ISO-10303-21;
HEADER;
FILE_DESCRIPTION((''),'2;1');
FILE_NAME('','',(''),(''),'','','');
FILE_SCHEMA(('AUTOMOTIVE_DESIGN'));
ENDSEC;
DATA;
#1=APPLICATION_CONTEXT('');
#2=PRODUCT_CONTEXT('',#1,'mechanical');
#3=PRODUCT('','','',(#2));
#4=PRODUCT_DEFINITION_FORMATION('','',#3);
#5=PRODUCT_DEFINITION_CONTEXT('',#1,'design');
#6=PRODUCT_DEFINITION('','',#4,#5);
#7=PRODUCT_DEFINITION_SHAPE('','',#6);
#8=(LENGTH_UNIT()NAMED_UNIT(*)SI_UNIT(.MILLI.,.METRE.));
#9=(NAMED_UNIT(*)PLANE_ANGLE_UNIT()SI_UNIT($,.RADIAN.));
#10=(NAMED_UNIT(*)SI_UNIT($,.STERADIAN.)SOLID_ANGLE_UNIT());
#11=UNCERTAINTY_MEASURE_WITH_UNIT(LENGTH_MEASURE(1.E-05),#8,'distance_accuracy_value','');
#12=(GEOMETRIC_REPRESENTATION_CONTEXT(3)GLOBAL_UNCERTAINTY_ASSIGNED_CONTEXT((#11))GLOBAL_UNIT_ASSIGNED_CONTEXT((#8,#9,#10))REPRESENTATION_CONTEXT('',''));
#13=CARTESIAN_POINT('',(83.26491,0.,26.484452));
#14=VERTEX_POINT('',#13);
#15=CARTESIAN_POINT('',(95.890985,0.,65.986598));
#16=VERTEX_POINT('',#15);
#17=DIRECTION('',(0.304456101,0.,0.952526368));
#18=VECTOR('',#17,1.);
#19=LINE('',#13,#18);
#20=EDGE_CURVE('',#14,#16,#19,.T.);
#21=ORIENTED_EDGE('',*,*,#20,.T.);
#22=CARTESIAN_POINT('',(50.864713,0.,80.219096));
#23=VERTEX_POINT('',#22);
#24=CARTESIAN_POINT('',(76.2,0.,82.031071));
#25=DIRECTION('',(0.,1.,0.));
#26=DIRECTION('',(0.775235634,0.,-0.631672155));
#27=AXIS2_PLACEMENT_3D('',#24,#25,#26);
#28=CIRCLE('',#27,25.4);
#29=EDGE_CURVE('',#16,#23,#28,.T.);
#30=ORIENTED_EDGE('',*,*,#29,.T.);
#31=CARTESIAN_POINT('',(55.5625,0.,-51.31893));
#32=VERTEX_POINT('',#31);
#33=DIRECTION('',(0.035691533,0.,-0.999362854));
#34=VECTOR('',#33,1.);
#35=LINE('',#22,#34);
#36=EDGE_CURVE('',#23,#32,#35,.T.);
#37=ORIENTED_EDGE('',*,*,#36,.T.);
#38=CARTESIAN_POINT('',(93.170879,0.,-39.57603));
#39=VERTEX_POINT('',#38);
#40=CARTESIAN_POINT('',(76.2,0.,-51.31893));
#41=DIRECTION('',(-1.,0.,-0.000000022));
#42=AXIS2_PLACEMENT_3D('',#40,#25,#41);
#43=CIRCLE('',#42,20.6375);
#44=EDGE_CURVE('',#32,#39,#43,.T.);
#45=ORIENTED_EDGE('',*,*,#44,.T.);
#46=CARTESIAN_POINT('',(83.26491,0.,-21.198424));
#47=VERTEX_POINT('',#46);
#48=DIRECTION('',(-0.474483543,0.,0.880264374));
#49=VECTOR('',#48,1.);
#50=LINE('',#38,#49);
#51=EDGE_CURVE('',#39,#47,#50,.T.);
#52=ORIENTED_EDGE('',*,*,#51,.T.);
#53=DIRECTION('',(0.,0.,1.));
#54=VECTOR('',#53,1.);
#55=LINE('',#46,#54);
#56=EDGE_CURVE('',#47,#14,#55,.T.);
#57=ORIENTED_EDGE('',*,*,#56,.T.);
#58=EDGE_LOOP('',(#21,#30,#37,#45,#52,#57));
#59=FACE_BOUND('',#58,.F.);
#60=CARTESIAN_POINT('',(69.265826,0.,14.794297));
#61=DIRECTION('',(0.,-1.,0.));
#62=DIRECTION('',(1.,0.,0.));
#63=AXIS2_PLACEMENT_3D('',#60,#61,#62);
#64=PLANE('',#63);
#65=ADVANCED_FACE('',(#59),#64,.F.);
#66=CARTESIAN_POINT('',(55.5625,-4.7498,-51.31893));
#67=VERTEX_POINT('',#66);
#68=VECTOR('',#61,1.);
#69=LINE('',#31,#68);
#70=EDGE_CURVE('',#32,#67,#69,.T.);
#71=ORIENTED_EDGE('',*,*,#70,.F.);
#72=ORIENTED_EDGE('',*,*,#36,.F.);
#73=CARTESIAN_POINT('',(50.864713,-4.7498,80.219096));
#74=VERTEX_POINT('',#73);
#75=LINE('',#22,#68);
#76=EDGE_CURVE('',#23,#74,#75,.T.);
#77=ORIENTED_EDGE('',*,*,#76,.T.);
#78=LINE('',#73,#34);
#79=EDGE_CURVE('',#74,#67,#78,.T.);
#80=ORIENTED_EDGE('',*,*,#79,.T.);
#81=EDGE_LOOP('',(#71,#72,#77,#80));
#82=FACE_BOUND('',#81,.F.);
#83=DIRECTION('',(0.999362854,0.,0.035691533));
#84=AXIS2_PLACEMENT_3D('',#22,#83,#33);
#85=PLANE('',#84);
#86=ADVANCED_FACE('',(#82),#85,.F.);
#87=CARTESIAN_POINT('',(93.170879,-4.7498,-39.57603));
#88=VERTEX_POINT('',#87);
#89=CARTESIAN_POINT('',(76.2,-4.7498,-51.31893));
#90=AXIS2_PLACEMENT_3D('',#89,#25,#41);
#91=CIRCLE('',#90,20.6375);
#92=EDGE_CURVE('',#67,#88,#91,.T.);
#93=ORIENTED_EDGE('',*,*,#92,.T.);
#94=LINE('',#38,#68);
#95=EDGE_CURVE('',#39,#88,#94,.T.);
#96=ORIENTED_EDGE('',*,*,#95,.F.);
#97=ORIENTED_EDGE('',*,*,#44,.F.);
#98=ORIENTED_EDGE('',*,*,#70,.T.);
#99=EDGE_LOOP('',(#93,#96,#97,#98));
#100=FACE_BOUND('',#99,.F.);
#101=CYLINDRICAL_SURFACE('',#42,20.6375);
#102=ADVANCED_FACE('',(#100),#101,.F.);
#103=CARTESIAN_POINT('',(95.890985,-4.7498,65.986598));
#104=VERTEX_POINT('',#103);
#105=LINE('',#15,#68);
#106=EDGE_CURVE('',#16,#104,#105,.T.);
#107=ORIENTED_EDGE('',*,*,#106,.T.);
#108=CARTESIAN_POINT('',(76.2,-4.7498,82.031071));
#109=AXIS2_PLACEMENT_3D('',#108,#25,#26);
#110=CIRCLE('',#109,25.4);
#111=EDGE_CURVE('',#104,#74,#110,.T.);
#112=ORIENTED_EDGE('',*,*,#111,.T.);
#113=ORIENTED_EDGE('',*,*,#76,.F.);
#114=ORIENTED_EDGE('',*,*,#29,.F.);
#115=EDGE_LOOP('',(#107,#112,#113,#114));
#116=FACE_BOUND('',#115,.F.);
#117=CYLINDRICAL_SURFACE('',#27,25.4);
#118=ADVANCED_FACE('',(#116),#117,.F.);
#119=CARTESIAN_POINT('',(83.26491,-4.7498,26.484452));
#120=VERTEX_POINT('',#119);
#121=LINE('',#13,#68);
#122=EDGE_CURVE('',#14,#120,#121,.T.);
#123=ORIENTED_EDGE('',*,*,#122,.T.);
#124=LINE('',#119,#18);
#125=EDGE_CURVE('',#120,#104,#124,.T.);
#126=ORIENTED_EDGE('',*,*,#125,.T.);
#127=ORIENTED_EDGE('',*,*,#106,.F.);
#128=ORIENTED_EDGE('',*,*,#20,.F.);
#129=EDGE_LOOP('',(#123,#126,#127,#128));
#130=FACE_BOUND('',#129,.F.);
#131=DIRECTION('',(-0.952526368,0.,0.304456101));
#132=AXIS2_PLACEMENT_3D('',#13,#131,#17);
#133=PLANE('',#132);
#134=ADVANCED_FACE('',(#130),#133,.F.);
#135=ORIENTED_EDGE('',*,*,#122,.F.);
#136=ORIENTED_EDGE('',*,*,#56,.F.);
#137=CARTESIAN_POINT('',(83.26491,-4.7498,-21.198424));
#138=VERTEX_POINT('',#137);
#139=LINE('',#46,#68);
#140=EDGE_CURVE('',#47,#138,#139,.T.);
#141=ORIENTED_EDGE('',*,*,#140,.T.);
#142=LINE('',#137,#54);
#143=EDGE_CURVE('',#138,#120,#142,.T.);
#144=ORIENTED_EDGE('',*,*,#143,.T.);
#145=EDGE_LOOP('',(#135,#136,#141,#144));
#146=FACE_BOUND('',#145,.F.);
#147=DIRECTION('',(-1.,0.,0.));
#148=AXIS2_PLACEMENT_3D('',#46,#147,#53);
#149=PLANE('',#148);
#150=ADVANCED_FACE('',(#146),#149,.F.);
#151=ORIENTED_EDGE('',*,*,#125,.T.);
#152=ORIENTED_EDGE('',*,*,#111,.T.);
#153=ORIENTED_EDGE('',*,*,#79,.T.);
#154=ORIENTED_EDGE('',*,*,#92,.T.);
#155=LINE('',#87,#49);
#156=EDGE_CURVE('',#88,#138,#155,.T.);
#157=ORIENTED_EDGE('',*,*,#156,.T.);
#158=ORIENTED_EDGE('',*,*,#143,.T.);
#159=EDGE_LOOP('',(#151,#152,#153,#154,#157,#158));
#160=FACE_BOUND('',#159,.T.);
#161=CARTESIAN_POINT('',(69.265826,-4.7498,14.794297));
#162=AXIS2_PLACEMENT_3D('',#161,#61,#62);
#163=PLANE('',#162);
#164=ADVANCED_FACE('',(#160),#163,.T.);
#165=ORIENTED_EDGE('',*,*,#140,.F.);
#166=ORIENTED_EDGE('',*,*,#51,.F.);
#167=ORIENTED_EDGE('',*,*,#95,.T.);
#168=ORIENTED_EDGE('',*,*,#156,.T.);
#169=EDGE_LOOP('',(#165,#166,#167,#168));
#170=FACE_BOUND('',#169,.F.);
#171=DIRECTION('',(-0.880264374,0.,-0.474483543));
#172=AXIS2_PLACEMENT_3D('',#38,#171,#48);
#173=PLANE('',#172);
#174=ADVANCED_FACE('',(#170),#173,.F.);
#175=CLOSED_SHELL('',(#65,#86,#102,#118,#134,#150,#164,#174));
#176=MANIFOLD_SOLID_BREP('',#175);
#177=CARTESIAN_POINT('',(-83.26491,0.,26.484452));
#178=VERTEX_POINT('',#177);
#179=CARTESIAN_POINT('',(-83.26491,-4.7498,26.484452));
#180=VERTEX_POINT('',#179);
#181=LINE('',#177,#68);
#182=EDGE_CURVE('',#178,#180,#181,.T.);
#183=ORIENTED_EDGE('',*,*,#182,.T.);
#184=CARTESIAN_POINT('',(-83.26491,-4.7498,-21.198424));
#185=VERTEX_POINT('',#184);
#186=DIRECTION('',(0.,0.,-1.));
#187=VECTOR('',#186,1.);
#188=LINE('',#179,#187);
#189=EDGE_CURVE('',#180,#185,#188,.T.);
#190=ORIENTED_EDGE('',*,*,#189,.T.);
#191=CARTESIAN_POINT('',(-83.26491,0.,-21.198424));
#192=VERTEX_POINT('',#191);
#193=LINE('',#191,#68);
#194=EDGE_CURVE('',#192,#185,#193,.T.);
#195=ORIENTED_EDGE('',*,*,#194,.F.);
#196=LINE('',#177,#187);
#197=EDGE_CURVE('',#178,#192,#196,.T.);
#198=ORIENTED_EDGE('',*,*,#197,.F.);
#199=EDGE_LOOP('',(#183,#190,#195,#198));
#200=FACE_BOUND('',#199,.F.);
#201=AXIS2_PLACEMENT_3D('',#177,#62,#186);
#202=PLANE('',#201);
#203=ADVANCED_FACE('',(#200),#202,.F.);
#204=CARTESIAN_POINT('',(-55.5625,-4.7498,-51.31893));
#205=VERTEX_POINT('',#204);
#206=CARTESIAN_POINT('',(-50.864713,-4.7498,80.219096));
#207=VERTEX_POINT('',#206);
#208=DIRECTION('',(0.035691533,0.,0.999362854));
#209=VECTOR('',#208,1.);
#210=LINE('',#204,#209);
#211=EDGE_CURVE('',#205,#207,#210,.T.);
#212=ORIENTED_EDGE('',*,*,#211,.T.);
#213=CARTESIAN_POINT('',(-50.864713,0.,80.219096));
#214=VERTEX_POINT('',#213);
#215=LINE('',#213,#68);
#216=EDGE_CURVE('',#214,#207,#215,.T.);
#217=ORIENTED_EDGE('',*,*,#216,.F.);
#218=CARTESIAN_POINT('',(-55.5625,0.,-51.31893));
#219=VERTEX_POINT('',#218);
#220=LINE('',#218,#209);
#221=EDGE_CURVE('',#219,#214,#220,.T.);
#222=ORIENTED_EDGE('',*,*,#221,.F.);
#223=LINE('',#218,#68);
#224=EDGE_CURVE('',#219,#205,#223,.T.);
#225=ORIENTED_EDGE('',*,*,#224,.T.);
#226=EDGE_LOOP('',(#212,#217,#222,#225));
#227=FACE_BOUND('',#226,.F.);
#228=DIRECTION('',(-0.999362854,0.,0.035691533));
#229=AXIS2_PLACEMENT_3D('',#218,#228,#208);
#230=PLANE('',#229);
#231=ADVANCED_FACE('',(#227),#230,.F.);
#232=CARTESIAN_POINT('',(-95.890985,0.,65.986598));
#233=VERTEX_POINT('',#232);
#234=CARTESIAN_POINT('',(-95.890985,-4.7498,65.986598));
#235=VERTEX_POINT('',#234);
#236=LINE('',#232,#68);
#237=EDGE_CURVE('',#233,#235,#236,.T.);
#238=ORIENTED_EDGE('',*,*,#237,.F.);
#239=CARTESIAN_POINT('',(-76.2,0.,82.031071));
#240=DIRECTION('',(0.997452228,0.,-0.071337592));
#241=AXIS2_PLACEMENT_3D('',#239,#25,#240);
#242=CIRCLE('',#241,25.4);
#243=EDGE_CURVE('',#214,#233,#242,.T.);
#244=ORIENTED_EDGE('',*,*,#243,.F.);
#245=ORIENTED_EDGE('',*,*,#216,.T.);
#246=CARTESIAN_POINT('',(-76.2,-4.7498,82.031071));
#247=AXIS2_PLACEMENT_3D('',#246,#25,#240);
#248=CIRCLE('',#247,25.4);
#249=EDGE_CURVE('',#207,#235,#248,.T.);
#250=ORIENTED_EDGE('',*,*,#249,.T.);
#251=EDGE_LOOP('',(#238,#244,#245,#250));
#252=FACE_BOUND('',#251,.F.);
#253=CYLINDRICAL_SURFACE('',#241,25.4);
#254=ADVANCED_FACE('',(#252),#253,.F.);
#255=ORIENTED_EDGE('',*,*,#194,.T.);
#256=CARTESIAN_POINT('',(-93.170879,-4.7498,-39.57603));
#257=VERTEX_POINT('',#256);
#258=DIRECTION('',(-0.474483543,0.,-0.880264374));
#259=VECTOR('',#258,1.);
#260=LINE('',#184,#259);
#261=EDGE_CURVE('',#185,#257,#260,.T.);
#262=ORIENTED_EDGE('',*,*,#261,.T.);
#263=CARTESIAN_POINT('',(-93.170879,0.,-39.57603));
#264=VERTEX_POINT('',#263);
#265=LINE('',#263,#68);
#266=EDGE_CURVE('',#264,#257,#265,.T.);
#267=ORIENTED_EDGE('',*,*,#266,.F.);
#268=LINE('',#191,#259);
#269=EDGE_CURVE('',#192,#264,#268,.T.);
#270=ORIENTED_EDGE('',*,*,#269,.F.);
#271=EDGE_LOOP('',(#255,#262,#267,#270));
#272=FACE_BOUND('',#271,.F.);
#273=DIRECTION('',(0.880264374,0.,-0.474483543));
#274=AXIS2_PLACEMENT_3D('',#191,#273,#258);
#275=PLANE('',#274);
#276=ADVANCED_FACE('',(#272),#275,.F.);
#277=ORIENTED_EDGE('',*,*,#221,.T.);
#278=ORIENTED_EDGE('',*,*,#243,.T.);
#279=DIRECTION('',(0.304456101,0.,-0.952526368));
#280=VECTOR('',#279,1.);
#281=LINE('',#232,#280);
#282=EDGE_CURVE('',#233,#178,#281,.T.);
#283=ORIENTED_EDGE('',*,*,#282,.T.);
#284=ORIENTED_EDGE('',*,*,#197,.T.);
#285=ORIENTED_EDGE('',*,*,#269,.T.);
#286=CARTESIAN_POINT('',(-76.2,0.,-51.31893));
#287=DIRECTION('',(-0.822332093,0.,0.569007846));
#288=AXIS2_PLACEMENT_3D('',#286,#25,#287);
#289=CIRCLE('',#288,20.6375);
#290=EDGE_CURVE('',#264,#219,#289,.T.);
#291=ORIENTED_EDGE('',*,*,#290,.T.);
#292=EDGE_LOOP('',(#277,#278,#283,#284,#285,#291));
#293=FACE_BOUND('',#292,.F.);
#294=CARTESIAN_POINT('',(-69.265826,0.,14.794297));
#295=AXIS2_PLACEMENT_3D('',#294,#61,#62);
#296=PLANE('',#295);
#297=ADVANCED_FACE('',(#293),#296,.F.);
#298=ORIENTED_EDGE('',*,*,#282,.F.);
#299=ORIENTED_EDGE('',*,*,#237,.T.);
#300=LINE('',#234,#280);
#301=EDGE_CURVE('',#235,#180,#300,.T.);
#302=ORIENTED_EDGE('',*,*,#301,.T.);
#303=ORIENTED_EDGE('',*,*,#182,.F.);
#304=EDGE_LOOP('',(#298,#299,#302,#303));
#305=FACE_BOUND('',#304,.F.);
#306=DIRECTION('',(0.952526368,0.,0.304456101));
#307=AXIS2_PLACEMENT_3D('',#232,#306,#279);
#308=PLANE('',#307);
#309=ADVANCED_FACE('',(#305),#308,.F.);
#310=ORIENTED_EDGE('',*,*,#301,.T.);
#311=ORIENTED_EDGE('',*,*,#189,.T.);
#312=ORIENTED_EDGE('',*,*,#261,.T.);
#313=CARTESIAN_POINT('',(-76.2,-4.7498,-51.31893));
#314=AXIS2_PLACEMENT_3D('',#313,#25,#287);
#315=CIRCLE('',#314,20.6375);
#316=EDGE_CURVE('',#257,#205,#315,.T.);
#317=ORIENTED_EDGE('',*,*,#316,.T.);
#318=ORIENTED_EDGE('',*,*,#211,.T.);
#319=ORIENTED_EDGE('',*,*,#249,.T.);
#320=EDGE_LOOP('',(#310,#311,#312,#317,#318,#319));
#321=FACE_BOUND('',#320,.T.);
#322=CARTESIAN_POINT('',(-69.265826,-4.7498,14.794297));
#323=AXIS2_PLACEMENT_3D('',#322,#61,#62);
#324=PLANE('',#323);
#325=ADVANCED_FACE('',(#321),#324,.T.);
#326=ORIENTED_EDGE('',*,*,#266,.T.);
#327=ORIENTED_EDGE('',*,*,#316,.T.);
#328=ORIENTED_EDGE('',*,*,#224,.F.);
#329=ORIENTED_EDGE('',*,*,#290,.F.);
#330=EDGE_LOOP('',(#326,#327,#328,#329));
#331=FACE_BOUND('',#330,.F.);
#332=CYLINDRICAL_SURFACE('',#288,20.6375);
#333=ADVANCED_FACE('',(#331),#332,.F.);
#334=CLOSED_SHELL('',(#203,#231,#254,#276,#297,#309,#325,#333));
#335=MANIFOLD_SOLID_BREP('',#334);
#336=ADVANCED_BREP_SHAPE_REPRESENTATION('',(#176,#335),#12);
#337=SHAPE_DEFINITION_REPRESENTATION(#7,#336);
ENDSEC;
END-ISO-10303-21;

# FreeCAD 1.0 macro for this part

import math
import FreeCAD as App
import Part
import Sketcher
from FreeCAD import Vector
Q = App.Units.Quantity

doc = App.newDocument("Part")
body = doc.addObject("PartDesign::Body", "Body")
body.AllowCompound = True

sketch1 = doc.addObject("Sketcher::SketchObject", "Sketch")
body.addObject(sketch1)
sketch1.AttachmentSupport = (doc.XZ_Plane, [""])
sketch1.MapMode = "FlatFace"
sketch1.addGeometry(Part.ArcOfCircle(Part.Circle(Vector(-76, 82, 0), Vector(0, 0, 1), 25), math.radians(-141), math.radians(-4)), False)
sketch1.addGeometry(Part.LineSegment(Vector(-96, 66, 0), Vector(-83, 26, 0)), False)
sketch1.addGeometry(Part.LineSegment(Vector(-83, 26, 0), Vector(-83, -21, 0)), False)
sketch1.addGeometry(Part.LineSegment(Vector(-83, -21, 0), Vector(-93, -40, 0)), False)
sketch1.addGeometry(Part.ArcOfCircle(Part.Circle(Vector(-76, -51, 0), Vector(0, 0, 1), 21), math.radians(0), math.radians(145)), False)
sketch1.addGeometry(Part.LineSegment(Vector(-56, -51, 0), Vector(-51, 80, 0)), False)
sketch1.addGeometry(Part.LineSegment(Vector(83, 26, 0), Vector(96, 66, 0)), False)
sketch1.addGeometry(Part.ArcOfCircle(Part.Circle(Vector(76, 82, 0), Vector(0, 0, 1), 25), math.radians(-176), math.radians(-39)), False)
sketch1.addGeometry(Part.LineSegment(Vector(51, 80, 0), Vector(56, -51, 0)), False)
sketch1.addGeometry(Part.ArcOfCircle(Part.Circle(Vector(76, -51, 0), Vector(0, 0, 1), 21), math.radians(35), math.radians(180)), False)
sketch1.addGeometry(Part.LineSegment(Vector(93, -40, 0), Vector(83, -21, 0)), False)
sketch1.addGeometry(Part.LineSegment(Vector(83, -21, 0), Vector(83, 26, 0)), False)
sketch1.addConstraint(Sketcher.Constraint("Coincident", 0, 1, 1, 1))
sketch1.addConstraint(Sketcher.Constraint("Coincident", 1, 2, 2, 1))
sketch1.addConstraint(Sketcher.Constraint("Coincident", 2, 2, 3, 1))
sketch1.addConstraint(Sketcher.Constraint("Coincident", 3, 2, 4, 2))
sketch1.addConstraint(Sketcher.Constraint("Coincident", 4, 1, 5, 1))
sketch1.addConstraint(Sketcher.Constraint("Coincident", 5, 2, 0, 2))
sketch1.addConstraint(Sketcher.Constraint("Coincident", 6, 2, 7, 2))
sketch1.addConstraint(Sketcher.Constraint("Coincident", 7, 1, 8, 1))
sketch1.addConstraint(Sketcher.Constraint("Coincident", 8, 2, 9, 2))
sketch1.addConstraint(Sketcher.Constraint("Coincident", 9, 1, 10, 1))
sketch1.addConstraint(Sketcher.Constraint("Coincident", 10, 2, 11, 1))
sketch1.addConstraint(Sketcher.Constraint("Coincident", 11, 2, 6, 1))
sketch1.addConstraint(Sketcher.Constraint("Vertical", 2))
sketch1.addConstraint(Sketcher.Constraint("Vertical", 11))
sketch1.addConstraint(Sketcher.Constraint("Equal", 0, 7))
sketch1.addConstraint(Sketcher.Constraint("Equal", 4, 9))
sketch1.addConstraint(Sketcher.Constraint("Symmetric", 0, 3, 7, 3, -2))
sketch1.addConstraint(Sketcher.Constraint("Symmetric", 4, 3, 9, 3, -2))
sketch1.addConstraint(Sketcher.Constraint("Symmetric", 2, 2, 10, 2, -2))
sketch1.addConstraint(Sketcher.Constraint("Horizontal", 9, 3, 4, 1))
sketch1.addConstraint(Sketcher.Constraint("Horizontal", 0, 1, 6, 2))
sketch1.addConstraint(Sketcher.Constraint("Horizontal", 5, 2, 7, 1))
sketch1.addConstraint(Sketcher.Constraint("Horizontal", 4, 1, 8, 2))
sketch1.addConstraint(Sketcher.Constraint("Horizontal", 3, 2, 9, 1))
sketch1.addConstraint(Sketcher.Constraint("Horizontal", 1, 2, 11, 2))
sketch1.addConstraint(Sketcher.Constraint("Vertical", 0, 3, 4, 3))
sketch1.addConstraint(Sketcher.Constraint("Radius", 0, Q("1 in")))
sketch1.addConstraint(Sketcher.Constraint("DistanceX", 0, 3, -1, 1, Q("3 in")))
sketch1.addConstraint(Sketcher.Constraint("Radius", 4, Q("0.8125 in")))
sketch1.addConstraint(Sketcher.Constraint("DistanceY", 4, 3, 0, 3, Q("5.25 in")))
sketch1.addConstraint(Sketcher.Constraint("DistanceY", -1, 1, 0, 1, 65.986598))
sketch1.addConstraint(Sketcher.Constraint("DistanceY", 4, 3, 3, 2, 11.7429))
sketch1.addConstraint(Sketcher.Constraint("DistanceX", 5, 2, 6, 2, 146.755698))
sketch1.addConstraint(Sketcher.Constraint("DistanceY", 6, 2, 7, 1, 14.232498))
sketch1.addConstraint(Sketcher.Constraint("Distance", 1, 41.470921))
sketch1.addConstraint(Sketcher.Constraint("Distance", 3, 20.877371))
sketch1.addConstraint(Sketcher.Constraint("DistanceY", 2, 2, 2, 1, 47.682876))
pad1 = doc.addObject("PartDesign::Pad", "Pad")
body.addObject(pad1)
pad1.Profile = sketch1
pad1.Length = Q("0.187 in")

doc.recompute()
